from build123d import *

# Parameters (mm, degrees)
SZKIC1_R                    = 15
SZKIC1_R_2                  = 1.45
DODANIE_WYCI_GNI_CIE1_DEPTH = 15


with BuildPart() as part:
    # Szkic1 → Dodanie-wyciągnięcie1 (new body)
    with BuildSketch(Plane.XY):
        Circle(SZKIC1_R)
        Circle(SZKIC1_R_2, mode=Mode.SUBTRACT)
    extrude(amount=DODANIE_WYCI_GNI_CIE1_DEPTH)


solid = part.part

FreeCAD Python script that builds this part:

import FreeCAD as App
import Part
import Sketcher

V = App.Vector
Q = App.Units.Quantity

doc = App.newDocument("Part")
params = doc.addObject("Spreadsheet::Sheet", "Params")
for row, (alias, value) in enumerate([
    ("sketch1_diameter", "30 mm"),
    ("sketch1_diameter2", "2.9 mm"),
    ("pad1_length", "15 mm"),
], start=1):
    params.set(f"A{row}", alias)
    params.set(f"B{row}", "=" + value)
    params.setAlias(f"B{row}", alias)

body = doc.addObject("PartDesign::Body", "Body")

# Sketch on XY plane
sketch1 = doc.addObject("Sketcher::SketchObject", "Sketch")
body.addObject(sketch1)
sketch1.AttachmentSupport = (doc.XY_Plane, [""])
sketch1.MapMode = "FlatFace"
sketch1.addGeometry([
    Part.Circle(V(0, 0, 0), V(0, 0, 1), 15),
    Part.Circle(V(0, 0, 0), V(0, 0, 1), 1.45),
], False)
sketch1.addConstraint([
    Sketcher.Constraint("Coincident", 0, 3, -1, 1),
    Sketcher.Constraint("Coincident", 1, 3, -1, 1),
    Sketcher.Constraint("Diameter", 0, Q("30 mm")),
    Sketcher.Constraint("Diameter", 1, Q("2.9 mm")),
])
sketch1.setExpression("Constraints[2]", "Params.sketch1_diameter")
sketch1.setExpression("Constraints[3]", "Params.sketch1_diameter2")
pad1 = doc.addObject("PartDesign::Pad", "Pad")
body.addObject(pad1)
pad1.Profile = sketch1
pad1.setExpression("Length", "Params.pad1_length")

doc.recompute()
